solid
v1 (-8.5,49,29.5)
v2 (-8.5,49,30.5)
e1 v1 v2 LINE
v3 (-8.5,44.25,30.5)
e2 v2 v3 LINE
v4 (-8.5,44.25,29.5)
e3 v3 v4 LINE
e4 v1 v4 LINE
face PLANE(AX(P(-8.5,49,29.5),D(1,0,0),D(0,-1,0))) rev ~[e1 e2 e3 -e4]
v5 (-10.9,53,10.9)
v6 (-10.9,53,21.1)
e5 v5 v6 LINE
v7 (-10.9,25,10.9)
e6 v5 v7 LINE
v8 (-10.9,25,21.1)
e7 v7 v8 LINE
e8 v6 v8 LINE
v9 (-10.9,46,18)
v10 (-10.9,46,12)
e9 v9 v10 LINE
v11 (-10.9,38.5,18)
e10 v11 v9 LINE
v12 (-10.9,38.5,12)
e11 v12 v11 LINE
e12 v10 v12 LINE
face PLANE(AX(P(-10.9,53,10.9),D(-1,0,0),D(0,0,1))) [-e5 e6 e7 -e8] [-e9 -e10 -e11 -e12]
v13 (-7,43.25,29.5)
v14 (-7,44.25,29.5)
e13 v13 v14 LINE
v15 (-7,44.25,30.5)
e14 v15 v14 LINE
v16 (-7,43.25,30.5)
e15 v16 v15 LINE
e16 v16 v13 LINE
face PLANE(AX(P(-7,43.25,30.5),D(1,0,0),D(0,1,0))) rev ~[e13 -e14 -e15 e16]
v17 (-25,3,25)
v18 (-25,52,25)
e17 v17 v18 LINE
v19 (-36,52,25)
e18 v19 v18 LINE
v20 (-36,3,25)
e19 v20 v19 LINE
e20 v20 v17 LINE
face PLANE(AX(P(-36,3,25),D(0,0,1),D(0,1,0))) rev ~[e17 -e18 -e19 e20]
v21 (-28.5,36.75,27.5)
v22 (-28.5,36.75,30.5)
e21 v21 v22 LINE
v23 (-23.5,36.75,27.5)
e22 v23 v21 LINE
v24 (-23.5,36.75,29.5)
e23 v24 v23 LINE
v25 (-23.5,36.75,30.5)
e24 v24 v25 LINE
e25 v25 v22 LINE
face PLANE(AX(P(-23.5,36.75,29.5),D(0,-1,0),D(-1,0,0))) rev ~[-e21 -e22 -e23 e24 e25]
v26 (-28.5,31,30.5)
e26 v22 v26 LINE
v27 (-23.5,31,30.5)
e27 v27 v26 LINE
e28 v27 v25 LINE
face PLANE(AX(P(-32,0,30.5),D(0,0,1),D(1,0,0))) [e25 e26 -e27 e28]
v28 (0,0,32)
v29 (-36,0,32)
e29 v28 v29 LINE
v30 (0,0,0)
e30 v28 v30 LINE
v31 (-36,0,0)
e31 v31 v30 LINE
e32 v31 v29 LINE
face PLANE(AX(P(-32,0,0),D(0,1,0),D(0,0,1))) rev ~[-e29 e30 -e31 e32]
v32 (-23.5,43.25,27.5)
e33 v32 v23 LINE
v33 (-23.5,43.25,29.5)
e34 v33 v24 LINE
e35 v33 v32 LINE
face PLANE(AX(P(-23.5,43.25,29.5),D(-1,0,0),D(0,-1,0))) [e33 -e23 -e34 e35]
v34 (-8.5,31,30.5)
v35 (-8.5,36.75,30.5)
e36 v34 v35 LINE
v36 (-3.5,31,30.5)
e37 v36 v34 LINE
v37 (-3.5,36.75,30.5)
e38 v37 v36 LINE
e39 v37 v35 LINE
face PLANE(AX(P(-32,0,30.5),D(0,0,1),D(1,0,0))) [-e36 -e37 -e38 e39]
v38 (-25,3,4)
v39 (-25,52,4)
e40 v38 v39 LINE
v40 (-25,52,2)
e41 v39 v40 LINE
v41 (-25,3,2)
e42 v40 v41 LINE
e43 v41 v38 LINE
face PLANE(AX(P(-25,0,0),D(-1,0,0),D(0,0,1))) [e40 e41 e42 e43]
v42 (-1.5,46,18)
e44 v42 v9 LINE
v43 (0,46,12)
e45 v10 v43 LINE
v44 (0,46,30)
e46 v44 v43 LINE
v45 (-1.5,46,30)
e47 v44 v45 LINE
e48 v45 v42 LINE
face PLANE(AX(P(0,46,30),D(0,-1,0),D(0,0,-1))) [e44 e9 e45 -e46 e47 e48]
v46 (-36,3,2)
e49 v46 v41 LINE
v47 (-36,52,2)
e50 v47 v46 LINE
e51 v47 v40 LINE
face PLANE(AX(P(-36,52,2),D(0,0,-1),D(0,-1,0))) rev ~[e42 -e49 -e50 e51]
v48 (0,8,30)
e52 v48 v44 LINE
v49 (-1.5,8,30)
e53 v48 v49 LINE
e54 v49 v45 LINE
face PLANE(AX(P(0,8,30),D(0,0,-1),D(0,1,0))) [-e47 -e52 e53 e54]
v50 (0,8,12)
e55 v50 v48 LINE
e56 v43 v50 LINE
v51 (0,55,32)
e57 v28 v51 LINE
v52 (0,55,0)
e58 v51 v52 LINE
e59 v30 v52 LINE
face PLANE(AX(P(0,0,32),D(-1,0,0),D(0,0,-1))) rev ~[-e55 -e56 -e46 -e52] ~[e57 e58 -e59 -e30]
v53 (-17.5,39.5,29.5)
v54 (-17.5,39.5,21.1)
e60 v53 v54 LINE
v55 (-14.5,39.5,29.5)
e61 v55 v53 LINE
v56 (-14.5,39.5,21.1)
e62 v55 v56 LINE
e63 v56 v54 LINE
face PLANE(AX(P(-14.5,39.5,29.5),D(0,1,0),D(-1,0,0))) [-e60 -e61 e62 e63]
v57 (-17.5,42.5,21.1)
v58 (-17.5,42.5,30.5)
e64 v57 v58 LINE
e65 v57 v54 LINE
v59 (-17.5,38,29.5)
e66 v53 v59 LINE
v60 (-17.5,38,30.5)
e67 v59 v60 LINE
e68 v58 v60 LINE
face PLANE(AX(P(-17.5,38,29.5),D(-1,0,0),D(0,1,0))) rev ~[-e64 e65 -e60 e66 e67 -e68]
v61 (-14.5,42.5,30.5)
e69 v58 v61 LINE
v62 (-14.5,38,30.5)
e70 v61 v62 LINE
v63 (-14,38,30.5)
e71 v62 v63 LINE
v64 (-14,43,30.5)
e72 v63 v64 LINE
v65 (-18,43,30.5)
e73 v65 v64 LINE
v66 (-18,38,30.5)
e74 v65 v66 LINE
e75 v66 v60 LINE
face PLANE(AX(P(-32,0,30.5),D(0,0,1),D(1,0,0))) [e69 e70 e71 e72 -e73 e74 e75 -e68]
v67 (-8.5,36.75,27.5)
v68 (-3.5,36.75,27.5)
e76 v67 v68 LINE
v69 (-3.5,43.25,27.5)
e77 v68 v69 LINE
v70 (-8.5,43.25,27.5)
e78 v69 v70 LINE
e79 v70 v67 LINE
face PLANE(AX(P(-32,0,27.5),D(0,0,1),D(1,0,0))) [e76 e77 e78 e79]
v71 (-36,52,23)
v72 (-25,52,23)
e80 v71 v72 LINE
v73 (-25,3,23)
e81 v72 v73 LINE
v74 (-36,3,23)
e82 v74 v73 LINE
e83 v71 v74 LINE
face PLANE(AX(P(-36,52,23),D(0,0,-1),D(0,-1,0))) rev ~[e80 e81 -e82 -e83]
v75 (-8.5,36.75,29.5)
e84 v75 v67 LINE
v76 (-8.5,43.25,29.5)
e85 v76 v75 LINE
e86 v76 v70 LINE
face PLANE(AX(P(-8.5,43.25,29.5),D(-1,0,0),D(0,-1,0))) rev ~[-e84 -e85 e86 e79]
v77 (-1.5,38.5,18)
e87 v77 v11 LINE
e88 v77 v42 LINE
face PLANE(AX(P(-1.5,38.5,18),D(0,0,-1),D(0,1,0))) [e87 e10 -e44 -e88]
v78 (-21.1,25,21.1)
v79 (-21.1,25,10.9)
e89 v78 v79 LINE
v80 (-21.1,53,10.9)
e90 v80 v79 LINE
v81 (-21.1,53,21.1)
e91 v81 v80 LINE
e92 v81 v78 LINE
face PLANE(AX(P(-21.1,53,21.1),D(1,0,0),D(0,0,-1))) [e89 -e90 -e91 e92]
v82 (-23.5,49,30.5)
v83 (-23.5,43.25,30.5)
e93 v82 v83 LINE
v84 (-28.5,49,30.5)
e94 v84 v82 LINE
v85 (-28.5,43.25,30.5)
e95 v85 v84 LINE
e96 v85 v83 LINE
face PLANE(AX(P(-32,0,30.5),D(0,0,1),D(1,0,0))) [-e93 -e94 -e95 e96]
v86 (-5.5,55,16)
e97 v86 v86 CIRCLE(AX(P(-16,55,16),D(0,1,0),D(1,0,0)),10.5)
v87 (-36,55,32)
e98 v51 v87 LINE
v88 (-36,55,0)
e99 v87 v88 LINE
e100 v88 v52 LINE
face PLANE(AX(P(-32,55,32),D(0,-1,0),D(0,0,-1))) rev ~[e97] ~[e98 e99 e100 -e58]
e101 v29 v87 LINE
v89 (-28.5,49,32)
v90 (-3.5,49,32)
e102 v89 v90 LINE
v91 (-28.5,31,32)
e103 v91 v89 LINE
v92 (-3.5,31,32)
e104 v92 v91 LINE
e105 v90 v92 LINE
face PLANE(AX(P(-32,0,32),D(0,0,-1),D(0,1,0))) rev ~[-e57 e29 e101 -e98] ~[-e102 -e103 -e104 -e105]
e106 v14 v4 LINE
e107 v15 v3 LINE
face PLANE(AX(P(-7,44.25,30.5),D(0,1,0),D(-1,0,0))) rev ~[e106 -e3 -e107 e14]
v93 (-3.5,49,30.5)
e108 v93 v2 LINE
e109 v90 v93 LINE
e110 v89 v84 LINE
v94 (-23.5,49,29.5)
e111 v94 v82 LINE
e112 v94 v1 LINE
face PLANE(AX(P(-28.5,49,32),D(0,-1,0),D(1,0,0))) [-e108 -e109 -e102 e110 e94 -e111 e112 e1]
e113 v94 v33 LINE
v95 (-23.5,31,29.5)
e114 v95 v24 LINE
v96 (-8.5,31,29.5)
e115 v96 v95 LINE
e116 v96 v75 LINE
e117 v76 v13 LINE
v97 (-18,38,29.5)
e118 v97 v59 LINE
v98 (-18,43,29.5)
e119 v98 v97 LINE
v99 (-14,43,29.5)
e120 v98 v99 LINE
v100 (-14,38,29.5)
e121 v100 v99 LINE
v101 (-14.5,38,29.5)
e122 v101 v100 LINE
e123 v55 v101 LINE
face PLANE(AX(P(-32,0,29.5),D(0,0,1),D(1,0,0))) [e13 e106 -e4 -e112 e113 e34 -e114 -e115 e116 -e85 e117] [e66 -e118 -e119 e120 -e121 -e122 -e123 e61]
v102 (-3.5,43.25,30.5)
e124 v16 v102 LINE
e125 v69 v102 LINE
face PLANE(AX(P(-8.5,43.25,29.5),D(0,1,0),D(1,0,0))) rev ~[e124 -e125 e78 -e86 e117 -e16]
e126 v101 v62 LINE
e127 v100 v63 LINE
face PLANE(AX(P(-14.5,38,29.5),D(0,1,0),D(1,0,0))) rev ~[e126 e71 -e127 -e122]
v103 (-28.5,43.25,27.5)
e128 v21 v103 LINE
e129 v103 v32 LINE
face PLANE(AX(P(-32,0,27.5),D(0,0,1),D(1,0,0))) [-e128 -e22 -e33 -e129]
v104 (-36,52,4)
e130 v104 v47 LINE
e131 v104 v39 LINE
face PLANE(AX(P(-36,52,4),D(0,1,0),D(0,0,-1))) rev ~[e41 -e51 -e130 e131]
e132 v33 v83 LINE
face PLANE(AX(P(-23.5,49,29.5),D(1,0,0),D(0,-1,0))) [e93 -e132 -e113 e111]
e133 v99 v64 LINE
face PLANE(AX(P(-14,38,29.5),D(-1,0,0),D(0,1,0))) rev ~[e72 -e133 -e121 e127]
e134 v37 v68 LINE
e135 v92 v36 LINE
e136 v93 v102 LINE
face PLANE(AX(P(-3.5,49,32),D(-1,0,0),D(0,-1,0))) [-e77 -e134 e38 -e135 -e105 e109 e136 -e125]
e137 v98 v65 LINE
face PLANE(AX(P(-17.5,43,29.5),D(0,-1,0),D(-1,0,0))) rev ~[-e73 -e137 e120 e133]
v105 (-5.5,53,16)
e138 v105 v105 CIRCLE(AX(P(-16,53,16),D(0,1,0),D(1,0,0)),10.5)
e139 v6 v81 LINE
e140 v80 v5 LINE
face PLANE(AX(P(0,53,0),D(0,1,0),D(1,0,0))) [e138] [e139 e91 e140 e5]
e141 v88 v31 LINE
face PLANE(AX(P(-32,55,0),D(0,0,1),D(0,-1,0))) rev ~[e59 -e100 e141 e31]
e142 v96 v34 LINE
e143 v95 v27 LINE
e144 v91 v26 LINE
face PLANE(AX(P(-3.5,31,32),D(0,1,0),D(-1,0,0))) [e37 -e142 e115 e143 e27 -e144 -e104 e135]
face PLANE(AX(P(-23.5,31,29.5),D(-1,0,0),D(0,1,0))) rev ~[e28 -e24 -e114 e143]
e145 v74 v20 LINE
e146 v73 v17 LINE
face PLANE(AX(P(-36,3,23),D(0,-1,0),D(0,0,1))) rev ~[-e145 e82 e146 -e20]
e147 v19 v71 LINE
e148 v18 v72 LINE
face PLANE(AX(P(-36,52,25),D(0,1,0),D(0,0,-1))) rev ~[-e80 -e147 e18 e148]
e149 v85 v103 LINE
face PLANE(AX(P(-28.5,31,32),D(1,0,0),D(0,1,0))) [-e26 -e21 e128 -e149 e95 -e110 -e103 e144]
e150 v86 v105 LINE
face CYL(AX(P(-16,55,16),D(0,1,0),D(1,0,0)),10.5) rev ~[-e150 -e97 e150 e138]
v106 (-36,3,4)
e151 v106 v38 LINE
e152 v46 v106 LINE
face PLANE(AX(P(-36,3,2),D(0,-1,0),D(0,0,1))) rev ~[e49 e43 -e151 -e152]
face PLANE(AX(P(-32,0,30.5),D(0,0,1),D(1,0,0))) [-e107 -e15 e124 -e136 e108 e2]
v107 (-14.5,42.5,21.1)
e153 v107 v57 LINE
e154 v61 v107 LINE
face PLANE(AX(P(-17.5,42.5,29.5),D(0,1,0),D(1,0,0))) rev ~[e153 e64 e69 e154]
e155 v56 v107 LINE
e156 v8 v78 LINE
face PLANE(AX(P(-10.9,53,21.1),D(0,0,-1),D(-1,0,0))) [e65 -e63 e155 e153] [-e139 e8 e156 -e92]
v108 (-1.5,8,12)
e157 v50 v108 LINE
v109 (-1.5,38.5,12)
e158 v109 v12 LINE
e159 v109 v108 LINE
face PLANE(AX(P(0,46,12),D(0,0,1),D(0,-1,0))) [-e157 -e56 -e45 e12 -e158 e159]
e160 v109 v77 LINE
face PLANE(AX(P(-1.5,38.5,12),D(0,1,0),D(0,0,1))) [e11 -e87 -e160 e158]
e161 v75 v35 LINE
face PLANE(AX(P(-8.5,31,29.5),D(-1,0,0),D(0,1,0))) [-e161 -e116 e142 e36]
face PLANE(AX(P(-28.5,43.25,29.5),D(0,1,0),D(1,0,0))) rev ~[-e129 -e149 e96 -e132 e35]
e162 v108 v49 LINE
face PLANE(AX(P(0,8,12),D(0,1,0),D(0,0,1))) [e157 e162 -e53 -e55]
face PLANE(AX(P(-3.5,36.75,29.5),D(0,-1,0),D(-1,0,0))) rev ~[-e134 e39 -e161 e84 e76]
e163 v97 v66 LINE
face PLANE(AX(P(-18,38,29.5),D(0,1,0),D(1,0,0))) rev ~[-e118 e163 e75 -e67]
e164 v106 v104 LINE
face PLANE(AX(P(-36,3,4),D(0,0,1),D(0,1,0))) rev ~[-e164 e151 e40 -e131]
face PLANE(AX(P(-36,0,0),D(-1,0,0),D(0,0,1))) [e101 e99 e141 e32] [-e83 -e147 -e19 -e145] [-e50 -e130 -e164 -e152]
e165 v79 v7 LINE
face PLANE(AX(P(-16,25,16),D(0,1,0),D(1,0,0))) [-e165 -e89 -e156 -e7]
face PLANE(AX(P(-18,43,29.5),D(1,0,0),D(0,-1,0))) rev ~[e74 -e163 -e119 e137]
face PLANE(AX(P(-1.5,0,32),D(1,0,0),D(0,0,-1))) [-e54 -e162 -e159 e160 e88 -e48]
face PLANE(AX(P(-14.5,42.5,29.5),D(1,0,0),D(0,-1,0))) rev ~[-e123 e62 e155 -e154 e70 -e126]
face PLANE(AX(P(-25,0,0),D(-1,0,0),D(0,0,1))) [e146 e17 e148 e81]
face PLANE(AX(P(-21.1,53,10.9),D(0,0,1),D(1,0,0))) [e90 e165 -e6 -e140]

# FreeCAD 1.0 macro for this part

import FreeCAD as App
import Part
import Sketcher

V = App.Vector
Q = App.Units.Quantity

doc = App.newDocument("Part")
body = doc.addObject("PartDesign::Body", "Body")

sketch1 = body.newObject("Sketcher::SketchObject", "Sketch")
sketch1.AttachmentSupport = (doc.getObject("XZ_Plane"), [""])
sketch1.MapMode = "FlatFace"
sketch1.addGeometry([
    Part.LineSegment(V(-32, 0, 0), V(-32, 32, 0)),
    Part.LineSegment(V(-32, 32, 0), V(0, 32, 0)),
    Part.LineSegment(V(0, 32, 0), V(0, 0, 0)),
    Part.LineSegment(V(0, 0, 0), V(-32, 0, 0)),
], False)
sketch1.addConstraint([
    Sketcher.Constraint("Coincident", 0, 2, 1, 1),
    Sketcher.Constraint("Coincident", 1, 2, 2, 1),
    Sketcher.Constraint("Coincident", 2, 2, 3, 1),
    Sketcher.Constraint("Coincident", 3, 2, 0, 1),
    Sketcher.Constraint("Vertical", 0),
    Sketcher.Constraint("Horizontal", 1),
    Sketcher.Constraint("Vertical", 2),
    Sketcher.Constraint("Horizontal", 3),
    Sketcher.Constraint("Coincident", 2, 2, -1, 1),
    Sketcher.Constraint("Equal", 3, 0),
    Sketcher.Constraint("DistanceX", 1, 1, 1, 2, Q("32 mm")),
])
pad1 = body.newObject("PartDesign::Pad", "Pad")
pad1.Profile = sketch1
pad1.Length = 55
pad1.Reversed = True

sketch2 = body.newObject("Sketcher::SketchObject", "Sketch001")
sketch2.AttachmentSupport = (doc.getObject("XY_Plane"), [""])
sketch2.MapMode = "FlatFace"
sketch2.AttachmentOffset = App.Placement(V(0, 0, 32), App.Rotation())
sketch2.addGeometry([
    Part.LineSegment(V(-3.5, 49, 0), V(-28.5, 49, 0)),
    Part.LineSegment(V(-28.5, 49, 0), V(-28.5, 31, 0)),
    Part.LineSegment(V(-28.5, 31, 0), V(-3.5, 31, 0)),
    Part.LineSegment(V(-3.5, 31, 0), V(-3.5, 49, 0)),
], False)
sketch2.addConstraint([
    Sketcher.Constraint("Coincident", 0, 2, 1, 1),
    Sketcher.Constraint("Coincident", 1, 2, 2, 1),
    Sketcher.Constraint("Coincident", 2, 2, 3, 1),
    Sketcher.Constraint("Coincident", 3, 2, 0, 1),
    Sketcher.Constraint("Horizontal", 0),
    Sketcher.Constraint("Vertical", 1),
    Sketcher.Constraint("Horizontal", 2),
    Sketcher.Constraint("Vertical", 3),
    Sketcher.Constraint("DistanceX", 0, 2, 0, 1, Q("25 mm")),
    Sketcher.Constraint("DistanceY", 1, 2, 1, 1, Q("18 mm")),
    Sketcher.Constraint("DistanceY", -1, 1, 0, 2, Q("49 mm")),
    Sketcher.Constraint("DistanceX", 0, 2, -1, 1, Q("28.5 mm")),
])
pocket1 = body.newObject("PartDesign::Pocket", "Pocket")
pocket1.Profile = sketch2
pocket1.Length = 2.5

sketch3 = body.newObject("Sketcher::SketchObject", "Sketch002")
sketch3.AttachmentSupport = (doc.getObject("XY_Plane"), [""])
sketch3.MapMode = "FlatFace"
sketch3.AttachmentOffset = App.Placement(V(0, 0, 29.5), App.Rotation())
sketch3.addGeometry([
    Part.LineSegment(V(-23.5, 43.25, 0), V(-28.5, 43.25, 0)),
    Part.LineSegment(V(-28.5, 43.25, 0), V(-28.5, 36.75, 0)),
    Part.LineSegment(V(-28.5, 36.75, 0), V(-23.5, 36.75, 0)),
    Part.LineSegment(V(-23.5, 36.75, 0), V(-23.5, 43.25, 0)),
], False)
sketch3.addConstraint([
    Sketcher.Constraint("Coincident", 0, 2, 1, 1),
    Sketcher.Constraint("Coincident", 1, 2, 2, 1),
    Sketcher.Constraint("Coincident", 2, 2, 3, 1),
    Sketcher.Constraint("Coincident", 3, 2, 0, 1),
    Sketcher.Constraint("Horizontal", 0),
    Sketcher.Constraint("Vertical", 1),
    Sketcher.Constraint("Horizontal", 2),
    Sketcher.Constraint("Vertical", 3),
    Sketcher.Constraint("DistanceX", 0, 2, 0, 1, Q("5 mm")),
    Sketcher.Constraint("DistanceY", 1, 2, 1, 1, Q("6.5 mm")),
    Sketcher.Constraint("DistanceX", 0, 2, -1, 1, Q("28.5 mm")),
    Sketcher.Constraint("DistanceY", -1, 1, 0, 2, Q("43.25 mm")),
])
pocket2 = body.newObject("PartDesign::Pocket", "Pocket001")
pocket2.Profile = sketch3
pocket2.Length = 2

sketch4 = body.newObject("Sketcher::SketchObject", "Sketch003")
sketch4.AttachmentSupport = (doc.getObject("XY_Plane"), [""])
sketch4.MapMode = "FlatFace"
sketch4.AttachmentOffset = App.Placement(V(0, 0, 29.5), App.Rotation())
sketch4.addGeometry([
    Part.LineSegment(V(-3.5, 36.75, 0), V(-3.5, 43.25, 0)),
    Part.LineSegment(V(-3.5, 43.25, 0), V(-8.5, 43.25, 0)),
    Part.LineSegment(V(-8.5, 43.25, 0), V(-8.5, 36.75, 0)),
    Part.LineSegment(V(-8.5, 36.75, 0), V(-3.5, 36.75, 0)),
], False)
sketch4.addConstraint([
    Sketcher.Constraint("Coincident", 0, 2, 1, 1),
    Sketcher.Constraint("Coincident", 1, 2, 2, 1),
    Sketcher.Constraint("Coincident", 2, 2, 3, 1),
    Sketcher.Constraint("Coincident", 3, 2, 0, 1),
    Sketcher.Constraint("Vertical", 0),
    Sketcher.Constraint("Horizontal", 1),
    Sketcher.Constraint("Vertical", 2),
    Sketcher.Constraint("Horizontal", 3),
    Sketcher.Constraint("DistanceX", 1, 2, 1, 1, Q("5 mm")),
    Sketcher.Constraint("DistanceY", 0, 1, 0, 2, Q("6.5 mm")),
    Sketcher.Constraint("DistanceX", 0, 2, -1, 1, Q("3.5 mm")),
    Sketcher.Constraint("DistanceY", -1, 1, 0, 2, Q("43.25 mm")),
])
pocket3 = body.newObject("PartDesign::Pocket", "Pocket002")
pocket3.Profile = sketch4
pocket3.Length = 2

sketch5 = body.newObject("Sketcher::SketchObject", "Sketch004")
sketch5.AttachmentSupport = (doc.getObject("XY_Plane"), [""])
sketch5.MapMode = "FlatFace"
sketch5.AttachmentOffset = App.Placement(V(0, 0, 29.5), App.Rotation())
sketch5.addGeometry([
    Part.LineSegment(V(-28.5, 49, 0), V(-28.5, 43.25, 0)),
    Part.LineSegment(V(-28.5, 43.25, 0), V(-23.5, 43.25, 0)),
    Part.LineSegment(V(-23.5, 43.25, 0), V(-23.5, 49, 0)),
    Part.LineSegment(V(-23.5, 49, 0), V(-28.5, 49, 0)),
], False)
sketch5.addConstraint([
    Sketcher.Constraint("Coincident", 0, 2, 1, 1),
    Sketcher.Constraint("Coincident", 1, 2, 2, 1),
    Sketcher.Constraint("Coincident", 2, 2, 3, 1),
    Sketcher.Constraint("Coincident", 3, 2, 0, 1),
    Sketcher.Constraint("Vertical", 0),
    Sketcher.Constraint("Horizontal", 1),
    Sketcher.Constraint("Vertical", 2),
    Sketcher.Constraint("Horizontal", 3),
    Sketcher.Constraint("DistanceX", 1, 1, 1, 2, Q("5 mm")),
    Sketcher.Constraint("DistanceY", -1, 1, 2, 2, Q("49 mm")),
    Sketcher.Constraint("DistanceY", 0, 2, 0, 1, Q("5.75 mm")),
    Sketcher.Constraint("DistanceX", 0, 2, -1, 1, Q("28.5 mm")),
])
pad2 = body.newObject("PartDesign::Pad", "Pad001")
pad2.Profile = sketch5
pad2.Length = 1

sketch6 = body.newObject("Sketcher::SketchObject", "Sketch005")
sketch6.AttachmentSupport = (doc.getObject("XY_Plane"), [""])
sketch6.MapMode = "FlatFace"
sketch6.AttachmentOffset = App.Placement(V(0, 0, 29.5), App.Rotation())
sketch6.addGeometry([
    Part.LineSegment(V(-23.5, 31, 0), V(-23.5, 36.75, 0)),
    Part.LineSegment(V(-23.5, 36.75, 0), V(-28.5, 36.75, 0)),
    Part.LineSegment(V(-28.5, 36.75, 0), V(-28.5, 31, 0)),
    Part.LineSegment(V(-28.5, 31, 0), V(-23.5, 31, 0)),
], False)
sketch6.addConstraint([
    Sketcher.Constraint("Coincident", 0, 2, 1, 1),
    Sketcher.Constraint("Coincident", 1, 2, 2, 1),
    Sketcher.Constraint("Coincident", 2, 2, 3, 1),
    Sketcher.Constraint("Coincident", 3, 2, 0, 1),
    Sketcher.Constraint("Vertical", 0),
    Sketcher.Constraint("Horizontal", 1),
    Sketcher.Constraint("Vertical", 2),
    Sketcher.Constraint("Horizontal", 3),
    Sketcher.Constraint("DistanceX", 1, 2, 1, 1, Q("5 mm")),
    Sketcher.Constraint("DistanceY", -1, 1, 2, 2, Q("31 mm")),
    Sketcher.Constraint("DistanceY", 0, 1, 0, 2, Q("5.75 mm")),
    Sketcher.Constraint("DistanceX", 0, 2, -1, 1, Q("23.5 mm")),
])
pad3 = body.newObject("PartDesign::Pad", "Pad002")
pad3.Profile = sketch6
pad3.Length = 1

sketch7 = body.newObject("Sketcher::SketchObject", "Sketch006")
sketch7.AttachmentSupport = (doc.getObject("XY_Plane"), [""])
sketch7.MapMode = "FlatFace"
sketch7.AttachmentOffset = App.Placement(V(0, 0, 29.5), App.Rotation())
sketch7.addGeometry([
    Part.LineSegment(V(-3.5, 31, 0), V(-3.5, 36.75, 0)),
    Part.LineSegment(V(-3.5, 36.75, 0), V(-8.5, 36.75, 0)),
    Part.LineSegment(V(-8.5, 36.75, 0), V(-8.5, 31, 0)),
    Part.LineSegment(V(-8.5, 31, 0), V(-3.5, 31, 0)),
], False)
sketch7.addConstraint([
    Sketcher.Constraint("Coincident", 0, 2, 1, 1),
    Sketcher.Constraint("Coincident", 1, 2, 2, 1),
    Sketcher.Constraint("Coincident", 2, 2, 3, 1),
    Sketcher.Constraint("Coincident", 3, 2, 0, 1),
    Sketcher.Constraint("Vertical", 0),
    Sketcher.Constraint("Horizontal", 1),
    Sketcher.Constraint("Vertical", 2),
    Sketcher.Constraint("Horizontal", 3),
    Sketcher.Constraint("DistanceX", 1, 2, 1, 1, Q("5 mm")),
    Sketcher.Constraint("DistanceY", -1, 1, 2, 2, Q("31 mm")),
    Sketcher.Constraint("DistanceY", 0, 1, 0, 2, Q("5.75 mm")),
    Sketcher.Constraint("DistanceX", 0, 2, -1, 1, Q("3.5 mm")),
])
pad4 = body.newObject("PartDesign::Pad", "Pad003")
pad4.Profile = sketch7
pad4.Length = 1

sketch8 = body.newObject("Sketcher::SketchObject", "Sketch007")
sketch8.AttachmentSupport = (doc.getObject("XY_Plane"), [""])
sketch8.MapMode = "FlatFace"
sketch8.AttachmentOffset = App.Placement(V(0, 0, 29.5), App.Rotation())
sketch8.addGeometry([
    Part.LineSegment(V(-8.5, 49, 0), V(-8.5, 43.25, 0)),
    Part.LineSegment(V(-8.5, 43.25, 0), V(-3.5, 43.25, 0)),
    Part.LineSegment(V(-3.5, 43.25, 0), V(-3.5, 49, 0)),
    Part.LineSegment(V(-3.5, 49, 0), V(-8.5, 49, 0)),
], False)
sketch8.addConstraint([
    Sketcher.Constraint("Coincident", 0, 2, 1, 1),
    Sketcher.Constraint("Coincident", 1, 2, 2, 1),
    Sketcher.Constraint("Coincident", 2, 2, 3, 1),
    Sketcher.Constraint("Coincident", 3, 2, 0, 1),
    Sketcher.Constraint("Vertical", 0),
    Sketcher.Constraint("Horizontal", 1),
    Sketcher.Constraint("Vertical", 2),
    Sketcher.Constraint("Horizontal", 3),
    Sketcher.Constraint("DistanceX", 1, 1, 1, 2, Q("5 mm")),
    Sketcher.Constraint("DistanceY", -1, 1, 2, 2, Q("49 mm")),
    Sketcher.Constraint("DistanceY", 0, 2, 0, 1, Q("5.75 mm")),
    Sketcher.Constraint("DistanceX", 0, 2, -1, 1, Q("8.5 mm")),
])
pad5 = body.newObject("PartDesign::Pad", "Pad004")
pad5.Profile = sketch8
pad5.Length = 1

sketch9 = body.newObject("Sketcher::SketchObject", "Sketch008")
sketch9.AttachmentSupport = (doc.getObject("XY_Plane"), [""])
sketch9.MapMode = "FlatFace"
sketch9.AttachmentOffset = App.Placement(V(0, 0, 30.5), App.Rotation())
sketch9.addGeometry([
    Part.LineSegment(V(-8.5, 44.25, 0), V(-8.5, 43.25, 0)),
    Part.LineSegment(V(-8.5, 43.25, 0), V(-7, 43.25, 0)),
    Part.LineSegment(V(-7, 43.25, 0), V(-7, 44.25, 0)),
    Part.LineSegment(V(-7, 44.25, 0), V(-8.5, 44.25, 0)),
], False)
sketch9.addConstraint([
    Sketcher.Constraint("Coincident", 0, 2, 1, 1),
    Sketcher.Constraint("Coincident", 1, 2, 2, 1),
    Sketcher.Constraint("Coincident", 2, 2, 3, 1),
    Sketcher.Constraint("Coincident", 3, 2, 0, 1),
    Sketcher.Constraint("Vertical", 0),
    Sketcher.Constraint("Horizontal", 1),
    Sketcher.Constraint("Vertical", 2),
    Sketcher.Constraint("Horizontal", 3),
    Sketcher.Constraint("DistanceY", 0, 2, 0, 1, Q("1 mm")),
    Sketcher.Constraint("DistanceX", 1, 1, 1, 2, Q("1.5 mm")),
    Sketcher.Constraint("DistanceX", 1, 2, -1, 1, Q("7 mm")),
    Sketcher.Constraint("DistanceY", -1, 1, 0, 2, Q("43.25 mm")),
])
pocket4 = body.newObject("PartDesign::Pocket", "Pocket003")
pocket4.Profile = sketch9
pocket4.Length = 1

sketch10 = body.newObject("Sketcher::SketchObject", "Sketch009")
sketch10.AttachmentSupport = (doc.getObject("XY_Plane"), [""])
sketch10.MapMode = "FlatFace"
sketch10.AttachmentOffset = App.Placement(V(0, 0, 29.5), App.Rotation())
sketch10.addGeometry([
    Part.LineSegment(V(-14, 43, 0), V(-18, 43, 0)),
    Part.LineSegment(V(-18, 43, 0), V(-18, 38, 0)),
    Part.LineSegment(V(-18, 38, 0), V(-17.5, 38, 0)),
    Part.LineSegment(V(-17.5, 38, 0), V(-17.5, 42.5, 0)),
    Part.LineSegment(V(-17.5, 42.5, 0), V(-14.5, 42.5, 0)),
    Part.LineSegment(V(-14.5, 42.5, 0), V(-14.5, 38, 0)),
    Part.LineSegment(V(-14.5, 38, 0), V(-14, 38, 0)),
    Part.LineSegment(V(-14, 38, 0), V(-14, 43, 0)),
], False)
sketch10.addConstraint([
    Sketcher.Constraint("Coincident", 0, 2, 1, 1),
    Sketcher.Constraint("Coincident", 1, 2, 2, 1),
    Sketcher.Constraint("Coincident", 2, 2, 3, 1),
    Sketcher.Constraint("Coincident", 3, 2, 4, 1),
    Sketcher.Constraint("Coincident", 4, 2, 5, 1),
    Sketcher.Constraint("Coincident", 5, 2, 6, 1),
    Sketcher.Constraint("Coincident", 6, 2, 7, 1),
    Sketcher.Constraint("Coincident", 7, 2, 0, 1),
    Sketcher.Constraint("Horizontal", 0),
    Sketcher.Constraint("Vertical", 1),
    Sketcher.Constraint("Horizontal", 2),
    Sketcher.Constraint("Vertical", 3),
    Sketcher.Constraint("Horizontal", 4),
    Sketcher.Constraint("Vertical", 5),
    Sketcher.Constraint("Horizontal", 6),
    Sketcher.Constraint("Vertical", 7),
    Sketcher.Constraint("Horizontal", 2, 2, 5, 2),
    Sketcher.Constraint("Equal", 2, 6),
    Sketcher.Constraint("DistanceX", 0, 2, 0, 1, Q("4 mm")),
    Sketcher.Constraint("DistanceX", 4, 1, 4, 2, Q("3 mm")),
    Sketcher.Constraint("DistanceY", 1, 2, 1, 1, Q("5 mm")),
    Sketcher.Constraint("DistanceY", 3, 1, 3, 2, Q("4.5 mm")),
    Sketcher.Constraint("DistanceX", 0, 2, -1, 1, Q("18 mm")),
    Sketcher.Constraint("DistanceY", -1, 1, 0, 2, Q("43 mm")),
])
pad6 = body.newObject("PartDesign::Pad", "Pad005")
pad6.Profile = sketch10
pad6.Length = 1

sketch11 = body.newObject("Sketcher::SketchObject", "Sketch010")
sketch11.AttachmentSupport = (doc.getObject("XY_Plane"), [""])
sketch11.MapMode = "FlatFace"
sketch11.AttachmentOffset = App.Placement(V(0, 0, 29.5), App.Rotation())
sketch11.addGeometry([
    Part.LineSegment(V(-14.5, 42.5, 0), V(-17.5, 42.5, 0)),
    Part.LineSegment(V(-17.5, 42.5, 0), V(-17.5, 39.5, 0)),
    Part.LineSegment(V(-17.5, 39.5, 0), V(-14.5, 39.5, 0)),
    Part.LineSegment(V(-14.5, 39.5, 0), V(-14.5, 42.5, 0)),
], False)
sketch11.addConstraint([
    Sketcher.Constraint("Coincident", 0, 2, 1, 1),
    Sketcher.Constraint("Coincident", 1, 2, 2, 1),
    Sketcher.Constraint("Coincident", 2, 2, 3, 1),
    Sketcher.Constraint("Coincident", 3, 2, 0, 1),
    Sketcher.Constraint("Horizontal", 0),
    Sketcher.Constraint("Vertical", 1),
    Sketcher.Constraint("Horizontal", 2),
    Sketcher.Constraint("Vertical", 3),
    Sketcher.Constraint("Equal", 2, 1),
    Sketcher.Constraint("DistanceX", 0, 2, 0, 1, Q("3 mm")),
    Sketcher.Constraint("DistanceX", 0, 2, -1, 1, Q("17.5 mm")),
    Sketcher.Constraint("DistanceY", -1, 1, 0, 2, Q("42.5 mm")),
])
pocket5 = body.newObject("PartDesign::Pocket", "Pocket004")
pocket5.Profile = sketch11
pocket5.Length = 8.5

sketch12 = body.newObject("Sketcher::SketchObject", "Sketch011")
sketch12.AttachmentSupport = (doc.getObject("YZ_Plane"), [""])
sketch12.MapMode = "FlatFace"
sketch12.addGeometry([
    Part.LineSegment(V(46, 12, 0), V(46, 30, 0)),
    Part.LineSegment(V(46, 30, 0), V(8, 30, 0)),
    Part.LineSegment(V(8, 30, 0), V(8, 12, 0)),
    Part.LineSegment(V(8, 12, 0), V(46, 12, 0)),
], False)
sketch12.addConstraint([
    Sketcher.Constraint("Coincident", 0, 2, 1, 1),
    Sketcher.Constraint("Coincident", 1, 2, 2, 1),
    Sketcher.Constraint("Coincident", 2, 2, 3, 1),
    Sketcher.Constraint("Coincident", 3, 2, 0, 1),
    Sketcher.Constraint("Vertical", 0),
    Sketcher.Constraint("Horizontal", 1),
    Sketcher.Constraint("Vertical", 2),
    Sketcher.Constraint("Horizontal", 3),
    Sketcher.Constraint("DistanceX", 1, 2, 1, 1, Q("38 mm")),
    Sketcher.Constraint("DistanceY", 0, 1, 0, 2, Q("18 mm")),
    Sketcher.Constraint("DistanceX", -1, 1, 0, 2, Q("46 mm")),
    Sketcher.Constraint("DistanceY", -1, 1, 0, 2, Q("30 mm")),
])
pocket6 = body.newObject("PartDesign::Pocket", "Pocket005")
pocket6.Profile = sketch12
pocket6.Length = 1.5

sketch13 = body.newObject("Sketcher::SketchObject", "Sketch012")
sketch13.AttachmentSupport = (doc.getObject("YZ_Plane"), [""])
sketch13.MapMode = "FlatFace"
sketch13.AttachmentOffset = App.Placement(V(0, 0, -1.5), App.Rotation())
sketch13.addGeometry([
    Part.LineSegment(V(38.5, 18, 0), V(38.5, 12, 0)),
    Part.LineSegment(V(38.5, 12, 0), V(46, 12, 0)),
    Part.LineSegment(V(46, 12, 0), V(46, 18, 0)),
    Part.LineSegment(V(46, 18, 0), V(38.5, 18, 0)),
], False)
sketch13.addConstraint([
    Sketcher.Constraint("Coincident", 0, 2, 1, 1),
    Sketcher.Constraint("Coincident", 1, 2, 2, 1),
    Sketcher.Constraint("Coincident", 2, 2, 3, 1),
    Sketcher.Constraint("Coincident", 3, 2, 0, 1),
    Sketcher.Constraint("Vertical", 0),
    Sketcher.Constraint("Horizontal", 1),
    Sketcher.Constraint("Vertical", 2),
    Sketcher.Constraint("Horizontal", 3),
    Sketcher.Constraint("DistanceY", 0, 2, 0, 1, Q("6 mm")),
    Sketcher.Constraint("DistanceX", 1, 1, 1, 2, Q("7.5 mm")),
    Sketcher.Constraint("DistanceY", -1, 1, 0, 2, Q("12 mm")),
    Sketcher.Constraint("DistanceX", -1, 1, 1, 2, Q("46 mm")),
])
pocket7 = body.newObject("PartDesign::Pocket", "Pocket006")
pocket7.Profile = sketch13
pocket7.Length = 9.5

sketch14 = body.newObject("Sketcher::SketchObject", "Sketch013")
sketch14.AttachmentSupport = (doc.getObject("XZ_Plane"), [""])
sketch14.MapMode = "FlatFace"
sketch14.AttachmentOffset = App.Placement(V(0, 0, -55), App.Rotation())
sketch14.addGeometry(Part.Circle(V(-16, 16, 0), V(0, 0, 1), 10.5), False)
sketch14.addConstraint([
    Sketcher.Constraint("Diameter", 0, Q("21 mm")),
    Sketcher.Constraint("DistanceX", 0, 3, -1, 1, Q("16 mm")),
    Sketcher.Constraint("DistanceY", -1, 1, 0, 3, Q("16 mm")),
])
pocket8 = body.newObject("PartDesign::Pocket", "Pocket007")
pocket8.Profile = sketch14
pocket8.Length = 2
pocket8.Reversed = True

sketch15 = body.newObject("Sketcher::SketchObject", "Sketch014")
sketch15.AttachmentSupport = (doc.getObject("YZ_Plane"), [""])
sketch15.MapMode = "FlatFace"
sketch15.AttachmentOffset = App.Placement(V(0, 0, -32), App.Rotation())
sketch15.addGeometry([
    Part.LineSegment(V(0, 0, 0), V(0, 32, 0)),
    Part.LineSegment(V(0, 32, 0), V(55, 32, 0)),
    Part.LineSegment(V(55, 32, 0), V(55, 0, 0)),
    Part.LineSegment(V(55, 0, 0), V(0, 0, 0)),
], False)
sketch15.addConstraint([
    Sketcher.Constraint("Coincident", 0, 2, 1, 1),
    Sketcher.Constraint("Coincident", 1, 2, 2, 1),
    Sketcher.Constraint("Coincident", 2, 2, 3, 1),
    Sketcher.Constraint("Coincident", 3, 2, 0, 1),
    Sketcher.Constraint("Vertical", 0),
    Sketcher.Constraint("Horizontal", 1),
    Sketcher.Constraint("Vertical", 2),
    Sketcher.Constraint("Horizontal", 3),
    Sketcher.Constraint("Coincident", 3, 2, -1, 1),
    Sketcher.Constraint("DistanceX", 1, 1, 1, 2, Q("55 mm")),
    Sketcher.Constraint("DistanceY", 0, 1, 0, 2, Q("32 mm")),
])
pad7 = body.newObject("PartDesign::Pad", "Pad006")
pad7.Profile = sketch15
pad7.Length = 4
pad7.Reversed = True

sketch16 = body.newObject("Sketcher::SketchObject", "Sketch015")
sketch16.AttachmentSupport = (doc.getObject("YZ_Plane"), [""])
sketch16.MapMode = "FlatFace"
sketch16.AttachmentOffset = App.Placement(V(0, 0, -36), App.Rotation())
sketch16.addGeometry([
    Part.LineSegment(V(52, 2, 0), V(3, 2, 0)),
    Part.LineSegment(V(3, 2, 0), V(3, 4, 0)),
    Part.LineSegment(V(3, 4, 0), V(52, 4, 0)),
    Part.LineSegment(V(52, 4, 0), V(52, 2, 0)),
    Part.LineSegment(V(52, 23, 0), V(3, 23, 0)),
    Part.LineSegment(V(3, 23, 0), V(3, 25, 0)),
    Part.LineSegment(V(3, 25, 0), V(52, 25, 0)),
    Part.LineSegment(V(52, 25, 0), V(52, 23, 0)),
], False)
sketch16.addConstraint([
    Sketcher.Constraint("Coincident", 0, 2, 1, 1),
    Sketcher.Constraint("Coincident", 1, 2, 2, 1),
    Sketcher.Constraint("Coincident", 2, 2, 3, 1),
    Sketcher.Constraint("Coincident", 3, 2, 0, 1),
    Sketcher.Constraint("Coincident", 4, 2, 5, 1),
    Sketcher.Constraint("Coincident", 5, 2, 6, 1),
    Sketcher.Constraint("Coincident", 6, 2, 7, 1),
    Sketcher.Constraint("Coincident", 7, 2, 4, 1),
    Sketcher.Constraint("Horizontal", 0),
    Sketcher.Constraint("Vertical", 1),
    Sketcher.Constraint("Horizontal", 2),
    Sketcher.Constraint("Vertical", 3),
    Sketcher.Constraint("Horizontal", 4),
    Sketcher.Constraint("Vertical", 5),
    Sketcher.Constraint("Horizontal", 6),
    Sketcher.Constraint("Vertical", 7),
    Sketcher.Constraint("Vertical", 1, 2, 4, 2),
    Sketcher.Constraint("Vertical", 3, 2, 6, 2),
    Sketcher.Constraint("Equal", 3, 5),
    Sketcher.Constraint("DistanceX", 0, 2, 0, 1, Q("49 mm")),
    Sketcher.Constraint("DistanceY", 1, 1, 1, 2, Q("2 mm")),
    Sketcher.Constraint("DistanceX", -1, 1, 0, 2, Q("3 mm")),
    Sketcher.Constraint("DistanceY", -1, 1, 0, 2, Q("2 mm")),
    Sketcher.Constraint("DistanceY", -1, 1, 4, 2, Q("23 mm")),
])
pocket9 = body.newObject("PartDesign::Pocket", "Pocket008")
pocket9.Profile = sketch16
pocket9.Length = 11
pocket9.Reversed = True

sketch17 = body.newObject("Sketcher::SketchObject", "Sketch016")
sketch17.AttachmentSupport = (doc.getObject("XZ_Plane"), [""])
sketch17.MapMode = "FlatFace"
sketch17.AttachmentOffset = App.Placement(V(0, 0, -53), App.Rotation())
sketch17.addGeometry([
    Part.LineSegment(V(-10.9, 10.9, 0), V(-21.1, 10.9, 0)),
    Part.LineSegment(V(-21.1, 10.9, 0), V(-21.1, 21.1, 0)),
    Part.LineSegment(V(-21.1, 21.1, 0), V(-10.9, 21.1, 0)),
    Part.LineSegment(V(-10.9, 21.1, 0), V(-10.9, 10.9, 0)),
], False)
sketch17.addConstraint([
    Sketcher.Constraint("Coincident", 0, 2, 1, 1),
    Sketcher.Constraint("Coincident", 1, 2, 2, 1),
    Sketcher.Constraint("Coincident", 2, 2, 3, 1),
    Sketcher.Constraint("Coincident", 3, 2, 0, 1),
    Sketcher.Constraint("Horizontal", 0),
    Sketcher.Constraint("Vertical", 1),
    Sketcher.Constraint("Horizontal", 2),
    Sketcher.Constraint("Vertical", 3),
    Sketcher.Constraint("Equal", 2, 1),
    Sketcher.Constraint("DistanceX", 0, 2, 0, 1, Q("10.2 mm")),
    Sketcher.Constraint("DistanceX", 0, 2, -1, 1, Q("21.1 mm")),
    Sketcher.Constraint("DistanceY", -1, 1, 0, 2, Q("10.9 mm")),
])
pocket10 = body.newObject("PartDesign::Pocket", "Pocket009")
pocket10.Profile = sketch17
pocket10.Length = 28
pocket10.Reversed = True

doc.recompute()
